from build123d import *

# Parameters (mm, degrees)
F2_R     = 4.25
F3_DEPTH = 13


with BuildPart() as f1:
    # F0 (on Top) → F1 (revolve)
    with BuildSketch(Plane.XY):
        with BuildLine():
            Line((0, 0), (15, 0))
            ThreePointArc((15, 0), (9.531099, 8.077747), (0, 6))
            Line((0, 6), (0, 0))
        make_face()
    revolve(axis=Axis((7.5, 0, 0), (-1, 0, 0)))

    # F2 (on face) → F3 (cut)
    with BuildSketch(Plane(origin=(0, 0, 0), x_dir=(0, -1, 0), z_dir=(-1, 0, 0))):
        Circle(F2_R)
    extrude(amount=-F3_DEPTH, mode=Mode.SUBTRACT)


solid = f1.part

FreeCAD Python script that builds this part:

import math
import FreeCAD as App
import Part
import Sketcher
from FreeCAD import Vector

doc = App.newDocument("Part")
body = doc.addObject("PartDesign::Body", "Body")

# Sketch on XY plane
sketch1 = body.newObject("Sketcher::SketchObject", "Sketch")
sketch1.AttachmentSupport = (doc.getObject("XY_Plane"), [""])
sketch1.MapMode = "FlatFace"
sketch1.addGeometry(Part.LineSegment(Vector(0, 0, 0), Vector(15, 0, 0)), False)
sketch1.addGeometry(Part.ArcOfCircle(Part.Circle(Vector(6, 0, 0), Vector(0, 0, 1), 9), math.radians(0), math.radians(136)), False)
sketch1.addGeometry(Part.LineSegment(Vector(0, 6, 0), Vector(0, 0, 0)), False)
sketch1.addConstraint(Sketcher.Constraint("Coincident", 0, 2, 1, 1))
sketch1.addConstraint(Sketcher.Constraint("Coincident", 1, 2, 2, 1))
sketch1.addConstraint(Sketcher.Constraint("Coincident", 2, 2, 0, 1))
sketch1.addConstraint(Sketcher.Constraint("Horizontal", 0))
sketch1.addConstraint(Sketcher.Constraint("Vertical", 2))
sketch1.addConstraint(Sketcher.Constraint("Coincident", 2, 2, -1, 1))
sketch1.addConstraint(Sketcher.Constraint("PointOnObject", 1, 3, -1))
sketch1.addConstraint(Sketcher.Constraint("Radius", 1, 8.7))
sketch1.addConstraint(Sketcher.Constraint("DistanceX", 0, 1, 0, 2, 15.0))
revolution = body.newObject("PartDesign::Revolution", "Revolution")
revolution.Profile = sketch1
revolution.ReferenceAxis = (sketch1, ["H_Axis"])
revolution.Angle = 360

# Sketch on YZ plane
sketch2 = body.newObject("Sketcher::SketchObject", "Sketch001")
sketch2.AttachmentSupport = (doc.getObject("YZ_Plane"), [""])
sketch2.MapMode = "FlatFace"
sketch2.addGeometry(Part.Circle(Vector(0, 0, 0), Vector(0, 0, 1), 4.2), False)
sketch2.addConstraint(Sketcher.Constraint("Coincident", 0, 3, -1, 1))
sketch2.addConstraint(Sketcher.Constraint("Diameter", 0, 8.5))
pocket1 = body.newObject("PartDesign::Pocket", "Pocket")
pocket1.Profile = sketch2
pocket1.Length = 13
pocket1.Reversed = True

doc.recompute()
